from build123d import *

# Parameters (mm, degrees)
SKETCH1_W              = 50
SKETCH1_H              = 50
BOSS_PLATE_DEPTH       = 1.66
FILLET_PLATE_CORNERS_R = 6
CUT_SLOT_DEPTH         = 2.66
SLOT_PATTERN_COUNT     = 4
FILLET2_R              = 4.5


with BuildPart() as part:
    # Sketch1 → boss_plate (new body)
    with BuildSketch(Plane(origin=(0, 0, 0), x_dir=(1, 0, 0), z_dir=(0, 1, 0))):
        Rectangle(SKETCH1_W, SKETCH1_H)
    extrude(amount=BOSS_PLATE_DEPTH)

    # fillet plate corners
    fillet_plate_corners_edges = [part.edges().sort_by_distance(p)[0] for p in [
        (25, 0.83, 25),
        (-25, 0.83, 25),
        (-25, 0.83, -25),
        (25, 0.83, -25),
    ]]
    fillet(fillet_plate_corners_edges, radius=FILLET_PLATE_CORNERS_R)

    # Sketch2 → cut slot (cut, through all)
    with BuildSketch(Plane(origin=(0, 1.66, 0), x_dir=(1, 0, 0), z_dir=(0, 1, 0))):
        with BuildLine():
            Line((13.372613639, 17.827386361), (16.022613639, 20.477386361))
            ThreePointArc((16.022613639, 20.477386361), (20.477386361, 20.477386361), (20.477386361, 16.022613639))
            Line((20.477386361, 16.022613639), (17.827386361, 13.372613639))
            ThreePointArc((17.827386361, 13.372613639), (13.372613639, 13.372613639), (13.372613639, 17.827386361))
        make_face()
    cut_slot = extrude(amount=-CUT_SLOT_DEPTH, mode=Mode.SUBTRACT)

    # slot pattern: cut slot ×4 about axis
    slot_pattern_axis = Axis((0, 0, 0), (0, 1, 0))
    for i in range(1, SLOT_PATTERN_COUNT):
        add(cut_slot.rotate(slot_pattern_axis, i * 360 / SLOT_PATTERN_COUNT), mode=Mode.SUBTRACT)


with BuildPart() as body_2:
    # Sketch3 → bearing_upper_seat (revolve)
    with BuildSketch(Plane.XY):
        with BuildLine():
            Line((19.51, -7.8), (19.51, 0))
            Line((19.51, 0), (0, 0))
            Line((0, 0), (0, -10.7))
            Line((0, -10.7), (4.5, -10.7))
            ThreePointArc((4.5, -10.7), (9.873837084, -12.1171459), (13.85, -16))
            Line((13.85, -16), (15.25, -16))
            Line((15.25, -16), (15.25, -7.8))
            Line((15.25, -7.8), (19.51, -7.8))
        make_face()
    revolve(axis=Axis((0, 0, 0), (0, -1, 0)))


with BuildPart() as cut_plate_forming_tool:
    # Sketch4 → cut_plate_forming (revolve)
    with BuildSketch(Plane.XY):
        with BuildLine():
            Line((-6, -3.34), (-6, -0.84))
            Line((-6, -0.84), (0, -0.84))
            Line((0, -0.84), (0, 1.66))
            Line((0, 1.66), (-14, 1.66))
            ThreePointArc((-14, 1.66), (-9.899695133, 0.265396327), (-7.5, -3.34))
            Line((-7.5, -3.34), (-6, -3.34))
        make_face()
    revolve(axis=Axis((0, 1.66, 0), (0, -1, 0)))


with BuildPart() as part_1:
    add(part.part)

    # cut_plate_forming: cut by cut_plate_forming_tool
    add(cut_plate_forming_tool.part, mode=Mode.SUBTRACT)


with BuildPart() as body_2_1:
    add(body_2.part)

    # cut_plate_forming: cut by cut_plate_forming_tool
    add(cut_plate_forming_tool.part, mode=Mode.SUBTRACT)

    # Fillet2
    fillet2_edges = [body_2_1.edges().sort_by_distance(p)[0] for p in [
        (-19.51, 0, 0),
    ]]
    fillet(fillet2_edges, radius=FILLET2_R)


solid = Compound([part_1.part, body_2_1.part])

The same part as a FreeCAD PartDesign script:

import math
import FreeCAD as App
import Part
import Sketcher

V = App.Vector
Q = App.Units.Quantity


def edges_at(feature, points):
    """Names of the edges that pass closest to the given points."""
    edges = feature.Shape.Edges
    near = lambda p: min(range(len(edges)), key=lambda i: edges[i].distToShape(Part.Vertex(*p))[0])
    return sorted({f"Edge{near(p) + 1}" for p in points})

doc = App.newDocument("Part")
body = doc.addObject("PartDesign::Body", "Body")

sketch1 = body.newObject("Sketcher::SketchObject", "Sketch")
sketch1.AttachmentSupport = (doc.getObject("XZ_Plane"), [""])
sketch1.MapMode = "FlatFace"
sketch1.addGeometry([
    Part.LineSegment(V(-25, -25, 0), V(-25, 25, 0)),
    Part.LineSegment(V(-25, 25, 0), V(25, 25, 0)),
    Part.LineSegment(V(25, 25, 0), V(25, -25, 0)),
    Part.LineSegment(V(25, -25, 0), V(-25, -25, 0)),
], False)
sketch1.addConstraint([
    Sketcher.Constraint("Coincident", 0, 2, 1, 1),
    Sketcher.Constraint("Coincident", 1, 2, 2, 1),
    Sketcher.Constraint("Coincident", 2, 2, 3, 1),
    Sketcher.Constraint("Coincident", 3, 2, 0, 1),
    Sketcher.Constraint("Vertical", 0),
    Sketcher.Constraint("Horizontal", 1),
    Sketcher.Constraint("Vertical", 2),
    Sketcher.Constraint("Horizontal", 3),
    Sketcher.Constraint("Symmetric", 0, 2, 2, 2, -1, 1),
    Sketcher.Constraint("Equal", 3, 0),
    Sketcher.Constraint("DistanceX", 1, 1, 1, 2, 50.0),
])
pad1 = body.newObject("PartDesign::Pad", "Pad")
pad1.Profile = sketch1
pad1.Length = 1.66
pad1.Reversed = True
doc.recompute()

fillet = body.newObject("PartDesign::Fillet", "Fillet")
fillet.Base = (pad1, edges_at(pad1, [
    (25, 0.83, 25),
    (-25, 0.83, 25),
    (-25, 0.83, -25),
    (25, 0.83, -25),
]))
fillet.Radius = 6

sketch2 = body.newObject("Sketcher::SketchObject", "Sketch001")
sketch2.AttachmentSupport = (doc.getObject("XZ_Plane"), [""])
sketch2.MapMode = "FlatFace"
sketch2.AttachmentOffset = App.Placement(V(0, 0, -1.66), App.Rotation())
sketch2.addGeometry([
    Part.LineSegment(V(16, -20.5, 0), V(13.4, -17.8, 0)),
    Part.ArcOfCircle(Part.Circle(V(15.6, -15.6, 0), V(0, 0, 1), 3.1), math.radians(45), math.radians(225)),
    Part.LineSegment(V(17.8, -13.4, 0), V(20.5, -16, 0)),
    Part.ArcOfCircle(Part.Circle(V(18.2, -18.2, 0), V(0, 0, 1), 3.1), math.radians(-135), math.radians(45)),
], False)
sketch2.addConstraint([
    Sketcher.Constraint("Tangent", 0, 2, 1, 2),
    Sketcher.Constraint("Tangent", 1, 1, 2, 1),
    Sketcher.Constraint("Tangent", 2, 2, 3, 2),
    Sketcher.Constraint("Tangent", 3, 1, 0, 1),
    Sketcher.Constraint("Equal", 1, 3),
    Sketcher.Constraint("Angle", 0, Q("135 deg")),
    Sketcher.Constraint("Radius", 1, 3.15),
    Sketcher.Constraint("DistanceX", -1, 1, 1, 3, 15.6),
    Sketcher.Constraint("DistanceY", 1, 3, -1, 1, 15.6),
    Sketcher.Constraint("DistanceX", -1, 1, 3, 3, 18.25),
])
pocket1 = body.newObject("PartDesign::Pocket", "Pocket")
pocket1.Profile = sketch2
pocket1.Type = "ThroughAll"
pocket1.Reversed = True
doc.recompute()

polarpattern = body.newObject("PartDesign::PolarPattern", "PolarPattern")
polarpattern.Originals = [pocket1]
polarpattern.Axis = (doc.getObject("Y_Axis"), [""])
polarpattern.Angle = 360
polarpattern.Occurrences = 4
body.Tip = polarpattern
body2 = doc.addObject("PartDesign::Body", "Body001")

sketch3 = body2.newObject("Sketcher::SketchObject", "Sketch002")
sketch3.AttachmentSupport = (doc.getObject("XY_Plane001"), [""])
sketch3.MapMode = "FlatFace"
sketch3.addGeometry([
    Part.LineSegment(V(19.5, -7.8, 0), V(19.5, 0, 0)),
    Part.LineSegment(V(19.5, 0, 0), V(0, 0, 0)),
    Part.LineSegment(V(0, 0, 0), V(0, -10.7, 0)),
    Part.LineSegment(V(0, -10.7, 0), V(4.5, -10.7, 0)),
    Part.ArcOfCircle(Part.Circle(V(4.5, -21.6, 0), V(0, 0, 1), 10.9), math.radians(31), math.radians(90)),
    Part.LineSegment(V(13.8, -16, 0), V(15.2, -16, 0)),
    Part.LineSegment(V(15.2, -16, 0), V(15.2, -7.8, 0)),
    Part.LineSegment(V(15.2, -7.8, 0), V(19.5, -7.8, 0)),
], False)
sketch3.addConstraint([
    Sketcher.Constraint("Coincident", 0, 2, 1, 1),
    Sketcher.Constraint("Coincident", 1, 2, 2, 1),
    Sketcher.Constraint("Coincident", 2, 2, 3, 1),
    Sketcher.Constraint("Tangent", 3, 2, 4, 2),
    Sketcher.Constraint("Coincident", 4, 1, 5, 1),
    Sketcher.Constraint("Coincident", 5, 2, 6, 1),
    Sketcher.Constraint("Coincident", 6, 2, 7, 1),
    Sketcher.Constraint("Coincident", 7, 2, 0, 1),
    Sketcher.Constraint("Vertical", 0),
    Sketcher.Constraint("Horizontal", 1),
    Sketcher.Constraint("Vertical", 2),
    Sketcher.Constraint("Horizontal", 3),
    Sketcher.Constraint("Horizontal", 5),
    Sketcher.Constraint("Vertical", 6),
    Sketcher.Constraint("Horizontal", 7),
    Sketcher.Constraint("Coincident", 1, 2, -1, 1),
    Sketcher.Constraint("DistanceX", 3, 1, 3, 2, 4.5),
    Sketcher.Constraint("DistanceX", 5, 1, 5, 2, 1.4),
    Sketcher.Constraint("DistanceY", 0, 1, 0, 2, 7.8),
    Sketcher.Constraint("DistanceY", 2, 2, 2, 1, 10.7),
    Sketcher.Constraint("DistanceY", 6, 1, 6, 2, 8.2),
    Sketcher.Constraint("DistanceX", 1, 2, 1, 1, 19.51),
    Sketcher.Constraint("DistanceX", 7, 1, 7, 2, 4.26),
])
revolution = body2.newObject("PartDesign::Revolution", "Revolution")
revolution.Profile = sketch3
revolution.ReferenceAxis = (sketch3, ["V_Axis"])
revolution.Angle = 360
body3 = doc.addObject("PartDesign::Body", "Body002")

sketch4 = body3.newObject("Sketcher::SketchObject", "Sketch003")
sketch4.AttachmentSupport = (doc.getObject("XY_Plane002"), [""])
sketch4.MapMode = "FlatFace"
sketch4.addGeometry([
    Part.LineSegment(V(-6, -3.3, 0), V(-6, -0.8, 0)),
    Part.LineSegment(V(-6, -0.8, 0), V(0, -0.8, 0)),
    Part.LineSegment(V(0, -0.8, 0), V(0, 1.7, 0)),
    Part.LineSegment(V(0, 1.7, 0), V(-14, 1.7, 0)),
    Part.ArcOfCircle(Part.Circle(V(-14, -5.1, 0), V(0, 0, 1), 6.7), math.radians(15), math.radians(90)),
    Part.LineSegment(V(-7.5, -3.3, 0), V(-6, -3.3, 0)),
], False)
sketch4.addConstraint([
    Sketcher.Constraint("Coincident", 0, 2, 1, 1),
    Sketcher.Constraint("Coincident", 1, 2, 2, 1),
    Sketcher.Constraint("Coincident", 2, 2, 3, 1),
    Sketcher.Constraint("Tangent", 3, 2, 4, 2),
    Sketcher.Constraint("Coincident", 4, 1, 5, 1),
    Sketcher.Constraint("Coincident", 5, 2, 0, 1),
    Sketcher.Constraint("Vertical", 0),
    Sketcher.Constraint("Horizontal", 1),
    Sketcher.Constraint("Vertical", 2),
    Sketcher.Constraint("Horizontal", 3),
    Sketcher.Constraint("Horizontal", 5),
    Sketcher.Constraint("PointOnObject", 1, 2, -2),
    Sketcher.Constraint("Equal", 0, 2),
    Sketcher.Constraint("DistanceX", 1, 1, 1, 2, 6.0),
    Sketcher.Constraint("DistanceX", 3, 2, 3, 1, 14.0),
    Sketcher.Constraint("DistanceX", 5, 1, 5, 2, 1.5),
    Sketcher.Constraint("DistanceY", 0, 1, 0, 2, 2.5),
    Sketcher.Constraint("DistanceY", 0, 2, -1, 1, 0.84),
])
revolution2 = body3.newObject("PartDesign::Revolution", "Revolution001")
revolution2.Profile = sketch4
revolution2.ReferenceAxis = (sketch4, ["V_Axis"])
revolution2.Angle = 360
doc.recompute()

body4 = doc.addObject("PartDesign::Body", "Body003")
body4.BaseFeature = body3
boolean = body.newObject("PartDesign::Boolean", "Boolean")
boolean.Type = "Cut"
boolean.addObjects([body4])
doc.recompute()

boolean2 = body2.newObject("PartDesign::Boolean", "Boolean001")
boolean2.Type = "Cut"
boolean2.addObjects([body3])
doc.recompute()

fillet2 = body2.newObject("PartDesign::Fillet", "Fillet001")
fillet2.Base = (boolean2, edges_at(boolean2, [(-19.51, 0, 0)]))
fillet2.Radius = 4.5

doc.recompute()
